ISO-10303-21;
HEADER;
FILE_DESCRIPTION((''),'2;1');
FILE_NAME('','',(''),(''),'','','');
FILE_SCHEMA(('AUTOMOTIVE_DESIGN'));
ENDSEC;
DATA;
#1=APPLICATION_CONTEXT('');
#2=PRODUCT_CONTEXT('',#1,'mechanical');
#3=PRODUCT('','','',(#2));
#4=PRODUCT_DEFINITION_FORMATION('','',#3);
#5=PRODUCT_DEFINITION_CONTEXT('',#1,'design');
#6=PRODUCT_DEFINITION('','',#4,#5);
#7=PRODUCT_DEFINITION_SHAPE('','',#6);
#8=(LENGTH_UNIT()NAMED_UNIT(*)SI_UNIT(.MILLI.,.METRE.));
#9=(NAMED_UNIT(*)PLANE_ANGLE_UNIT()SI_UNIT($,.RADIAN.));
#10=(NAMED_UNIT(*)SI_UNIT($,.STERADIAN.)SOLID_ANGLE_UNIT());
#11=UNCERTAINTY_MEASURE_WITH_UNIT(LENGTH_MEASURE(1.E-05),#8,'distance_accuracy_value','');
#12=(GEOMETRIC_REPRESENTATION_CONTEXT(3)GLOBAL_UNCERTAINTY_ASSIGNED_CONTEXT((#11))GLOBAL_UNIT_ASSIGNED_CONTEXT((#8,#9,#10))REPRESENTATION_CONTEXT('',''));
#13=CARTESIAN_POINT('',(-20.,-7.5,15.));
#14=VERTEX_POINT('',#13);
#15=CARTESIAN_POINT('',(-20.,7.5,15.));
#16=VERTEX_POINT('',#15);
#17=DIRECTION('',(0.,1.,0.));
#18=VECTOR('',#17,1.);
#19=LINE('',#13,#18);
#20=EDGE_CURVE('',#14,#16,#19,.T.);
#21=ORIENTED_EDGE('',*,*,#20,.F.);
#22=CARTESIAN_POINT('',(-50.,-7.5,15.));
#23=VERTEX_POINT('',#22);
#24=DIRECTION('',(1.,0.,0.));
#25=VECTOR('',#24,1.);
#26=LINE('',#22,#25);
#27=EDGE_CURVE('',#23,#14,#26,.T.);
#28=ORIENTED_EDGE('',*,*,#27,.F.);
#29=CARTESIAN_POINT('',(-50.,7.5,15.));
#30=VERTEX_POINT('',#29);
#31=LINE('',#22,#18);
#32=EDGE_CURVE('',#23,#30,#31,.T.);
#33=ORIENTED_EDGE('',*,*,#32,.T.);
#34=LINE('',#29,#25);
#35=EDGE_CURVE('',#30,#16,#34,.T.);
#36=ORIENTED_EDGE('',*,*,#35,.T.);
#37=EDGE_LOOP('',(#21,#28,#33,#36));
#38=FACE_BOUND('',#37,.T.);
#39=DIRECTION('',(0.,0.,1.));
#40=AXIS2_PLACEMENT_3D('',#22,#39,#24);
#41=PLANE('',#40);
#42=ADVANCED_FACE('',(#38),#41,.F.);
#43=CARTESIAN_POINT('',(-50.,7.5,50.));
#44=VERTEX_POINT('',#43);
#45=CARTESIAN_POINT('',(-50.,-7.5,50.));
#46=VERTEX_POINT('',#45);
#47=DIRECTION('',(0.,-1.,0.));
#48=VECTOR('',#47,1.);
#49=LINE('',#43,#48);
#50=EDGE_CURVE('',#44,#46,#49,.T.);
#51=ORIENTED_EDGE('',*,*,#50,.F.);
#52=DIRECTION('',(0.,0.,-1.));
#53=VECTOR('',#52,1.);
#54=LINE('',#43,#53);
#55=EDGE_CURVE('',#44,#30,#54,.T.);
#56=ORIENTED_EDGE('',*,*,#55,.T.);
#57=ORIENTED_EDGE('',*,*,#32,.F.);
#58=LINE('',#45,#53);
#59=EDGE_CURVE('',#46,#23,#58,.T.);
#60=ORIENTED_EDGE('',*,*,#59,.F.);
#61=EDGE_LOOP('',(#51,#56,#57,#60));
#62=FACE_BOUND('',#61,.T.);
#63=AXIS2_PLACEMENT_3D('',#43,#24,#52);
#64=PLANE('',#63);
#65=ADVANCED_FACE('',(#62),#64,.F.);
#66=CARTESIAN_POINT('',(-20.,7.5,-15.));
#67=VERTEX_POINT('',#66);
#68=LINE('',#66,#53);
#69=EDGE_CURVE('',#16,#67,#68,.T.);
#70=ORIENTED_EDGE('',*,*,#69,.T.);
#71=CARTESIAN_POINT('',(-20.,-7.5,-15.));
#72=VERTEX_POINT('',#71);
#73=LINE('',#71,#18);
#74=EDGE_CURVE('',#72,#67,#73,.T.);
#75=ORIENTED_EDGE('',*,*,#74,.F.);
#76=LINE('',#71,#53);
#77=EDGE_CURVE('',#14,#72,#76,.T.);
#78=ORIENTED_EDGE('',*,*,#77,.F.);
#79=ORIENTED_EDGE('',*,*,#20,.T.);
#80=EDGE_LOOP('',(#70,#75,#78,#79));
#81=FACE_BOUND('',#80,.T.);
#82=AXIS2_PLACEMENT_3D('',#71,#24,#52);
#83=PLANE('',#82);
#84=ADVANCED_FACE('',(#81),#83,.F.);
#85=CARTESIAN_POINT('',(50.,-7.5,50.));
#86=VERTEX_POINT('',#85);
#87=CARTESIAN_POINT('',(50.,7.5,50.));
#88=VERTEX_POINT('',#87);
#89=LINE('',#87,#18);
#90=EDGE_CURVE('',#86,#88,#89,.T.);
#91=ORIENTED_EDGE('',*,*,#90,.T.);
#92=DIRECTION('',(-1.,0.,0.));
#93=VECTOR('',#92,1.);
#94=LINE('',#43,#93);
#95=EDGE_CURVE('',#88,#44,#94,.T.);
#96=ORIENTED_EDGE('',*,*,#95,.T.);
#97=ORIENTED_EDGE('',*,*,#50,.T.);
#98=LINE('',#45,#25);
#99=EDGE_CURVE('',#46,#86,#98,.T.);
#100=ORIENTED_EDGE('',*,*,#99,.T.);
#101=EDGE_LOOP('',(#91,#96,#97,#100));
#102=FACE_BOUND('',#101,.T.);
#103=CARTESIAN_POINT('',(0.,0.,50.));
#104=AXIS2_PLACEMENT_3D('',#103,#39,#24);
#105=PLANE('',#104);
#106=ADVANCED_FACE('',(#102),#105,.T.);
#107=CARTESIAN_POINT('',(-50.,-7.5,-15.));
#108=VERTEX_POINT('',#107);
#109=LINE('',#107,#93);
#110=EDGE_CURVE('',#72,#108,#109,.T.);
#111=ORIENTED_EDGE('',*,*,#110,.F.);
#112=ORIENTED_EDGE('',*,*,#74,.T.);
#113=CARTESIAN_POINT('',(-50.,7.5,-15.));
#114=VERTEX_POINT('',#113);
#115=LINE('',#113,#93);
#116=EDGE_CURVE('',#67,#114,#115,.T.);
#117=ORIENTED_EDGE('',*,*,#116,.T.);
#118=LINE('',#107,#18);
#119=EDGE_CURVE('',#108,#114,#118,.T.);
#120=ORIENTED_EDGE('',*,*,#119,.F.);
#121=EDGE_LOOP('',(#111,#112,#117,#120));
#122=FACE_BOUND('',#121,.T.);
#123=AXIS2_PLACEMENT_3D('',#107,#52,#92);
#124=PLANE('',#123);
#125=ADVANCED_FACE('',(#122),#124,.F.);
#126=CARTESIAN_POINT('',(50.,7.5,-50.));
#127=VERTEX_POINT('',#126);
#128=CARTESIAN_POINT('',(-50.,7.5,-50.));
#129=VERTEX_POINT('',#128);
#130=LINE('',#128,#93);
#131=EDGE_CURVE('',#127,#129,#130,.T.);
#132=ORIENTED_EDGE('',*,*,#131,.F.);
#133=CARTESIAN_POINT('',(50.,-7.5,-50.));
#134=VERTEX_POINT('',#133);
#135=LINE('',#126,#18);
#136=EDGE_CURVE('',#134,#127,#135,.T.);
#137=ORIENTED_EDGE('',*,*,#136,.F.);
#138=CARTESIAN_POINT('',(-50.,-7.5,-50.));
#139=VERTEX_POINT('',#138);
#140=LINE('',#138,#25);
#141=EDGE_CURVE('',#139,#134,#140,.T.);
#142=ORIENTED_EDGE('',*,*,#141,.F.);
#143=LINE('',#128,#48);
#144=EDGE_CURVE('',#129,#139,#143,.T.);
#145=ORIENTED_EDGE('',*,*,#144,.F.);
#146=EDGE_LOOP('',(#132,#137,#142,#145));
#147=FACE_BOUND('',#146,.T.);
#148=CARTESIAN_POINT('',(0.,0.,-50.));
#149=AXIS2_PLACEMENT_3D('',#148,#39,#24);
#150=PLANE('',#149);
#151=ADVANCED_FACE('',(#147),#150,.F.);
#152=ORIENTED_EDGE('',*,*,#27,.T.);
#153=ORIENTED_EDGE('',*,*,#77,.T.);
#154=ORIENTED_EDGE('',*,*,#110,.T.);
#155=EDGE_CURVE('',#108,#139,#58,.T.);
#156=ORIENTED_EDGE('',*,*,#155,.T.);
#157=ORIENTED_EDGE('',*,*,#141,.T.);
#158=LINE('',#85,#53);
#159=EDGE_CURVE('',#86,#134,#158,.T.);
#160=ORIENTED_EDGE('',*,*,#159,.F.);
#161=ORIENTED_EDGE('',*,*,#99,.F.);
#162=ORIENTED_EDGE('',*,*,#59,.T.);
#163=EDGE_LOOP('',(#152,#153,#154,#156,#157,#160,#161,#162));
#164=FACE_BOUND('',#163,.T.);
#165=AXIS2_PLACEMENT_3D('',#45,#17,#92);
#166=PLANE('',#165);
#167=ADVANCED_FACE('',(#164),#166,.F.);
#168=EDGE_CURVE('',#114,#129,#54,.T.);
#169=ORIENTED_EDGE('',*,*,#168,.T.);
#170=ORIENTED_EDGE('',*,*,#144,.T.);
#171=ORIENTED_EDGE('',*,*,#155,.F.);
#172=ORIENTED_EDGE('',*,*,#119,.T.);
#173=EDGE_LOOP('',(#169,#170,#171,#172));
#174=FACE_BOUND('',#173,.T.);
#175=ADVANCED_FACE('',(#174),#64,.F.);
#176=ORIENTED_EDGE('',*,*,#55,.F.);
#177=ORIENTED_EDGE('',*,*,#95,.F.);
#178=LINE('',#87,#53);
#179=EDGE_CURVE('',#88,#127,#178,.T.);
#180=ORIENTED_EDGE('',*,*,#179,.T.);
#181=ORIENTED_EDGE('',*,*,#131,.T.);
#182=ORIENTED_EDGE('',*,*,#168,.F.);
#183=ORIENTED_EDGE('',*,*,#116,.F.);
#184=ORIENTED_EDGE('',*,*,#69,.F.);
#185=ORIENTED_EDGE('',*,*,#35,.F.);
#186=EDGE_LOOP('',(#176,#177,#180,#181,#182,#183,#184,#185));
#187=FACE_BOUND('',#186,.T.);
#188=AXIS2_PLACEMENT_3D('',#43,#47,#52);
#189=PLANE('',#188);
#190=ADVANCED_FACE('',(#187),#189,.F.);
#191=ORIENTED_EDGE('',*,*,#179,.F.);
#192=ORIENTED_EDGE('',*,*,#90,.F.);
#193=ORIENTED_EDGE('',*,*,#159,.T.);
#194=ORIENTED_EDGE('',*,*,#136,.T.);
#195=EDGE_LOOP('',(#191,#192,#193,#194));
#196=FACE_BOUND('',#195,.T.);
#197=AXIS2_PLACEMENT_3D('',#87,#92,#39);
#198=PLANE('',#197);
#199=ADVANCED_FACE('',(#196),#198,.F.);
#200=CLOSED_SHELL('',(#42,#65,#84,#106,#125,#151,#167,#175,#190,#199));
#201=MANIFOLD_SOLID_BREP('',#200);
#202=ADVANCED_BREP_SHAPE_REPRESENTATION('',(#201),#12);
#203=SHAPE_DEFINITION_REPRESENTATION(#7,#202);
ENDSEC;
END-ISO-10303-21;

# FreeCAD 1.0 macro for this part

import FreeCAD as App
import Part
import Sketcher

V = App.Vector

doc = App.newDocument("Part")
body = doc.addObject("PartDesign::Body", "Body")

sketch1 = body.newObject("Sketcher::SketchObject", "Sketch")
sketch1.AttachmentSupport = (doc.getObject("XY_Plane"), [""])
sketch1.MapMode = "FlatFace"
sketch1.addGeometry([
    Part.LineSegment(V(-50, 7.5, 0), V(-50, -7.5, 0)),
    Part.LineSegment(V(-50, -7.5, 0), V(50, -7.5, 0)),
    Part.LineSegment(V(50, -7.5, 0), V(50, 7.5, 0)),
    Part.LineSegment(V(50, 7.5, 0), V(-50, 7.5, 0)),
], False)
sketch1.addConstraint([
    Sketcher.Constraint("Coincident", 0, 2, 1, 1),
    Sketcher.Constraint("Coincident", 1, 2, 2, 1),
    Sketcher.Constraint("Coincident", 2, 2, 3, 1),
    Sketcher.Constraint("Coincident", 3, 2, 0, 1),
    Sketcher.Constraint("Vertical", 0),
    Sketcher.Constraint("Horizontal", 1),
    Sketcher.Constraint("Vertical", 2),
    Sketcher.Constraint("Horizontal", 3),
    Sketcher.Constraint("Symmetric", 0, 2, 2, 2, -1, 1),
    Sketcher.Constraint("DistanceX", 1, 1, 1, 2, 100.0),
    Sketcher.Constraint("DistanceY", 0, 2, 0, 1, 15.0),
])
pad1 = body.newObject("PartDesign::Pad", "Pad")
pad1.Profile = sketch1
pad1.Length = 100
pad1.Midplane = True

sketch2 = body.newObject("Sketcher::SketchObject", "Sketch001")
sketch2.AttachmentSupport = (doc.getObject("XZ_Plane"), [""])
sketch2.MapMode = "FlatFace"
sketch2.addGeometry([
    Part.LineSegment(V(-50, -15, 0), V(-50, 15, 0)),
    Part.LineSegment(V(-50, 15, 0), V(-20, 15, 0)),
    Part.LineSegment(V(-20, 15, 0), V(-20, -15, 0)),
    Part.LineSegment(V(-20, -15, 0), V(-50, -15, 0)),
], False)
sketch2.addConstraint([
    Sketcher.Constraint("Coincident", 0, 2, 1, 1),
    Sketcher.Constraint("Coincident", 1, 2, 2, 1),
    Sketcher.Constraint("Coincident", 2, 2, 3, 1),
    Sketcher.Constraint("Coincident", 3, 2, 0, 1),
    Sketcher.Constraint("Vertical", 0),
    Sketcher.Constraint("Horizontal", 1),
    Sketcher.Constraint("Vertical", 2),
    Sketcher.Constraint("Horizontal", 3),
    Sketcher.Constraint("Equal", 3, 0),
    Sketcher.Constraint("DistanceX", 1, 1, 1, 2, 30.0),
    Sketcher.Constraint("DistanceX", 0, 2, -1, 1, 50.0),
    Sketcher.Constraint("DistanceY", -1, 1, 0, 2, 15.0),
])
pocket1 = body.newObject("PartDesign::Pocket", "Pocket")
pocket1.Profile = sketch2
pocket1.Type = "ThroughAll"
pocket1.Midplane = True

doc.recompute()
